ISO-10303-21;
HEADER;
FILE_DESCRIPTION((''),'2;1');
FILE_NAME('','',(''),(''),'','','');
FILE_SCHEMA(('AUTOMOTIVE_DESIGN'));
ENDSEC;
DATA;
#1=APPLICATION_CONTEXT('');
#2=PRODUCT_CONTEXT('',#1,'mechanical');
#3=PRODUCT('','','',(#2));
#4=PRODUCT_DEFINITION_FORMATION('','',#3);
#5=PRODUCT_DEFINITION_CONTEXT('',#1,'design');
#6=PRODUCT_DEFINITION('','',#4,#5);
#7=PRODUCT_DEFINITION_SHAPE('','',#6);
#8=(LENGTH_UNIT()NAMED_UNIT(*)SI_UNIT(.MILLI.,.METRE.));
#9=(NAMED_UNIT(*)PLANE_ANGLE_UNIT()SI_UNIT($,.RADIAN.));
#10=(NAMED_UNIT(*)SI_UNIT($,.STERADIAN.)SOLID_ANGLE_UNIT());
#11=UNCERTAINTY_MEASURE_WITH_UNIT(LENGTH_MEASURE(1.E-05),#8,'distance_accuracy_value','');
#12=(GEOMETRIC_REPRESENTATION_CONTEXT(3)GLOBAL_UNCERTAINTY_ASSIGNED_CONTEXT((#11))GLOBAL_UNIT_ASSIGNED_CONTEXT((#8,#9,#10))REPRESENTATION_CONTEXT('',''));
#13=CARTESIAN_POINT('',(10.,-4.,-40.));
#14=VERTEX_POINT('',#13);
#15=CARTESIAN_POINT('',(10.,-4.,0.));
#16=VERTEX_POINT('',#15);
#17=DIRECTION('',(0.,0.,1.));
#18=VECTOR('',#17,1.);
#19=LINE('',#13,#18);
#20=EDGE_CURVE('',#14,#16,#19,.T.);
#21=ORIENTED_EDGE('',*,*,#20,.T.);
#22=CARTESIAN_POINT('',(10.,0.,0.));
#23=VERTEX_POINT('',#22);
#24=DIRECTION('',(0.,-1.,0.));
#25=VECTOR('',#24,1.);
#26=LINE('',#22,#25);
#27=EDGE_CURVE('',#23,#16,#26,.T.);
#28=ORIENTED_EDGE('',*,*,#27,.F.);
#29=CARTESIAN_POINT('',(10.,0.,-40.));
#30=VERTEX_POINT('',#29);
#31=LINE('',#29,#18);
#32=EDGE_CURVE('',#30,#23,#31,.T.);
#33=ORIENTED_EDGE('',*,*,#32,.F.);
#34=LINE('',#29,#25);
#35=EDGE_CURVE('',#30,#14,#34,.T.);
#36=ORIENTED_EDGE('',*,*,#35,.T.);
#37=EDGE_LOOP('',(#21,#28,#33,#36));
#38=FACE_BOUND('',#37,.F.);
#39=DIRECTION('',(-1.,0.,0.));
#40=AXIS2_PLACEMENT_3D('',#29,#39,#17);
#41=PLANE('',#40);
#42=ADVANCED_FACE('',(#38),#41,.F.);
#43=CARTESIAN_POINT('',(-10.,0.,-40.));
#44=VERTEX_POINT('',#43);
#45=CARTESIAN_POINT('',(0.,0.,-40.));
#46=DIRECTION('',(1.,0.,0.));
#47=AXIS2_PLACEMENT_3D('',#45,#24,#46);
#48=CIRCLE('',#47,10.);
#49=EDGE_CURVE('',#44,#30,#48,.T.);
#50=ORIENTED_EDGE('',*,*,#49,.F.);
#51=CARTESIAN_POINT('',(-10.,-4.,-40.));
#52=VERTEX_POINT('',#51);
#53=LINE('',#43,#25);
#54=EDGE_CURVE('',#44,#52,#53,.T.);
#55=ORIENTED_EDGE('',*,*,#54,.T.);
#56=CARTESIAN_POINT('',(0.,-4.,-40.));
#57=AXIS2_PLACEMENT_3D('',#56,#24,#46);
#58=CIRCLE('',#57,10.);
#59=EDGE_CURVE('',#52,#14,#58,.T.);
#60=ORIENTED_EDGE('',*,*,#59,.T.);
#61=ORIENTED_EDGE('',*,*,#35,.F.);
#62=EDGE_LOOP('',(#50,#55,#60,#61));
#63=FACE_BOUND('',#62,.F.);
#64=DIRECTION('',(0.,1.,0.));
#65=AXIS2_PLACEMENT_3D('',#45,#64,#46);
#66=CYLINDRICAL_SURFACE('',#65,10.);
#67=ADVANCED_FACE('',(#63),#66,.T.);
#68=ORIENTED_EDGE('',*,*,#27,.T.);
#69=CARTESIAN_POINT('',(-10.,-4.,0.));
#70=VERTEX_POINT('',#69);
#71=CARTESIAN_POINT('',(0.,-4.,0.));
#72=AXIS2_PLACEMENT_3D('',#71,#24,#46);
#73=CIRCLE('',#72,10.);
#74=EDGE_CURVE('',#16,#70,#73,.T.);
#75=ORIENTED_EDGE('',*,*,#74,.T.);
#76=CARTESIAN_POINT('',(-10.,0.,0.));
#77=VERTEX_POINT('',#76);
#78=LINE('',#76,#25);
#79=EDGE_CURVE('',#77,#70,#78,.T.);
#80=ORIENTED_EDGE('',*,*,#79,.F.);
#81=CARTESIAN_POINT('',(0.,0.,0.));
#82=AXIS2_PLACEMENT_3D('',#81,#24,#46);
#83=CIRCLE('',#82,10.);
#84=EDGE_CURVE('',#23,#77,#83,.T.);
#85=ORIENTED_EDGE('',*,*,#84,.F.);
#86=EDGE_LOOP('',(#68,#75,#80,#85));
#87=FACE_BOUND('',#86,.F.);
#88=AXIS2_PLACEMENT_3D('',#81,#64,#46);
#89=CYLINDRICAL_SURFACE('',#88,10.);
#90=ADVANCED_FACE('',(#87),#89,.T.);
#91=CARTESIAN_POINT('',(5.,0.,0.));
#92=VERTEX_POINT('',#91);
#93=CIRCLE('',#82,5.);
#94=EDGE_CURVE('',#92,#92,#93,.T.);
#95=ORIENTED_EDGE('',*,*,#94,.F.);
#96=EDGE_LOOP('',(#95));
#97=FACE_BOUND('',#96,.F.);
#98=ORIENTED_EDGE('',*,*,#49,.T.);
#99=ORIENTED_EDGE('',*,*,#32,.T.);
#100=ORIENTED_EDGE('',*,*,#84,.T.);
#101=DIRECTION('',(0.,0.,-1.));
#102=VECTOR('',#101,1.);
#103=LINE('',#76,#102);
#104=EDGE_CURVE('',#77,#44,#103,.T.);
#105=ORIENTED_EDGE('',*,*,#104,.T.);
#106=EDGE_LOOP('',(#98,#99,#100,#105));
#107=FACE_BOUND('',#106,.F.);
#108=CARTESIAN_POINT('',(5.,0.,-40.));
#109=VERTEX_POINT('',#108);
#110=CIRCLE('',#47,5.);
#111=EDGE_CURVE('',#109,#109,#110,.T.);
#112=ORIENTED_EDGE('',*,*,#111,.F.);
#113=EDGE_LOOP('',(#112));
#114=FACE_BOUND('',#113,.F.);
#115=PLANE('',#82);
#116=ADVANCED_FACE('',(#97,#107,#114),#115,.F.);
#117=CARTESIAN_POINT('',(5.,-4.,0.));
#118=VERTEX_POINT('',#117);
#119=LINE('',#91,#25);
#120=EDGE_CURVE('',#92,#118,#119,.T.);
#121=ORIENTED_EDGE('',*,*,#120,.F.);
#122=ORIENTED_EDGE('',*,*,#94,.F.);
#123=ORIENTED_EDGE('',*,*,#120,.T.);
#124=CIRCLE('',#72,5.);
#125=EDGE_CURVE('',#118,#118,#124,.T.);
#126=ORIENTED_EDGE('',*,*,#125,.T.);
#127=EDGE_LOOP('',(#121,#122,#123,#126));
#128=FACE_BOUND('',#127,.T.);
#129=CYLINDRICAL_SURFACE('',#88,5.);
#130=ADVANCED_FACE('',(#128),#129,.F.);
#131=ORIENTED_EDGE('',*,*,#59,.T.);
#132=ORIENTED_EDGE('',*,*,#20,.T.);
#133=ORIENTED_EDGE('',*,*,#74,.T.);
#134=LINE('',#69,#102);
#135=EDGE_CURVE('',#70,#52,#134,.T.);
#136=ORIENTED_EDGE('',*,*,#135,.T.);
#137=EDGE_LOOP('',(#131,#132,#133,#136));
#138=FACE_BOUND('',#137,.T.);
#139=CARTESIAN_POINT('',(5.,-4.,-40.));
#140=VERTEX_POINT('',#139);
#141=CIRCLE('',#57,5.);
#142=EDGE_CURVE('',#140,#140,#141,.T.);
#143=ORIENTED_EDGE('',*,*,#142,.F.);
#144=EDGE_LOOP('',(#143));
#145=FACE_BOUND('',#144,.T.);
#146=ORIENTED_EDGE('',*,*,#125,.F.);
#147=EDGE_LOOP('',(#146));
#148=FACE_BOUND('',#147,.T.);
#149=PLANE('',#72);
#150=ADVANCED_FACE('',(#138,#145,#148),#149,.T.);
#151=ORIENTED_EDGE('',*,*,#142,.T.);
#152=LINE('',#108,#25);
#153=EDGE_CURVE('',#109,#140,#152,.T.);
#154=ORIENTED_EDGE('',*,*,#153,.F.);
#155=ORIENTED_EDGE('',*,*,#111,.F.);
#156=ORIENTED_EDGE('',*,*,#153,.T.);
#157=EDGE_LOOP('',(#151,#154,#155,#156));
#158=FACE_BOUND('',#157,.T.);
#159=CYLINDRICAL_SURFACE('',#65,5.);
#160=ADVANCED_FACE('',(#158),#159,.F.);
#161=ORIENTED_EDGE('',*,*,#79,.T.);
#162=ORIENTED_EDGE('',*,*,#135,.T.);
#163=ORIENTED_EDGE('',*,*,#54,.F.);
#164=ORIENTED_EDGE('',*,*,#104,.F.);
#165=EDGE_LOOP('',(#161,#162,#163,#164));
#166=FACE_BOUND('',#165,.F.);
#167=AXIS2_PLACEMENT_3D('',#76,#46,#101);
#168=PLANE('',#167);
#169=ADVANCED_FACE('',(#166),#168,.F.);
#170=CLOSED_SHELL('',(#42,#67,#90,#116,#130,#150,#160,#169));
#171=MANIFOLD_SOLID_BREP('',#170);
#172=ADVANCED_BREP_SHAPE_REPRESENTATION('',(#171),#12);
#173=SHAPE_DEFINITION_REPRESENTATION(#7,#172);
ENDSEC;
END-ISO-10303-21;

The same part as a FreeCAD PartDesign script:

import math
import FreeCAD as App
import Part
import Sketcher
from FreeCAD import Vector
Q = App.Units.Quantity

doc = App.newDocument("Part")
body = doc.addObject("PartDesign::Body", "Body")

sketch1 = body.newObject("Sketcher::SketchObject", "Sketch")
sketch1.AttachmentSupport = (doc.getObject("XZ_Plane"), [""])
sketch1.MapMode = "FlatFace"
sketch1.addGeometry([
    Part.ArcOfCircle(Part.Circle(Vector(0, 0, 0), Vector(0, 0, 1), 10), math.radians(0), math.radians(180)),
    Part.LineSegment(Vector(-10, 0, 0), Vector(-10, -40, 0)),
    Part.ArcOfCircle(Part.Circle(Vector(0, -40, 0), Vector(0, 0, 1), 10), math.radians(180), math.radians(360)),
    Part.LineSegment(Vector(10, -40, 0), Vector(10, 0, 0)),
    Part.Circle(Vector(0, -40, 0), Vector(0, 0, 1), 5),
    Part.Circle(Vector(0, 0, 0), Vector(0, 0, 1), 5),
], False)
sketch1.addConstraint([
    Sketcher.Constraint("Tangent", 0, 2, 1, 1),
    Sketcher.Constraint("Tangent", 1, 2, 2, 1),
    Sketcher.Constraint("Tangent", 2, 2, 3, 1),
    Sketcher.Constraint("Tangent", 3, 2, 0, 1),
    Sketcher.Constraint("Vertical", 1),
    Sketcher.Constraint("Vertical", 3),
    Sketcher.Constraint("Coincident", 0, 3, -1, 1),
    Sketcher.Constraint("Coincident", 5, 3, -1, 1),
    Sketcher.Constraint("Coincident", 4, 3, 2, 3),
    Sketcher.Constraint("Equal", 4, 5),
    Sketcher.Constraint("Diameter", 4, Q("10 mm")),
    Sketcher.Constraint("Radius", 0, Q("10 mm")),
    Sketcher.Constraint("DistanceY", 1, 2, 1, 1, Q("40 mm")),
])
pad1 = body.newObject("PartDesign::Pad", "Pad")
pad1.Profile = sketch1
pad1.Length = 4

doc.recompute()
